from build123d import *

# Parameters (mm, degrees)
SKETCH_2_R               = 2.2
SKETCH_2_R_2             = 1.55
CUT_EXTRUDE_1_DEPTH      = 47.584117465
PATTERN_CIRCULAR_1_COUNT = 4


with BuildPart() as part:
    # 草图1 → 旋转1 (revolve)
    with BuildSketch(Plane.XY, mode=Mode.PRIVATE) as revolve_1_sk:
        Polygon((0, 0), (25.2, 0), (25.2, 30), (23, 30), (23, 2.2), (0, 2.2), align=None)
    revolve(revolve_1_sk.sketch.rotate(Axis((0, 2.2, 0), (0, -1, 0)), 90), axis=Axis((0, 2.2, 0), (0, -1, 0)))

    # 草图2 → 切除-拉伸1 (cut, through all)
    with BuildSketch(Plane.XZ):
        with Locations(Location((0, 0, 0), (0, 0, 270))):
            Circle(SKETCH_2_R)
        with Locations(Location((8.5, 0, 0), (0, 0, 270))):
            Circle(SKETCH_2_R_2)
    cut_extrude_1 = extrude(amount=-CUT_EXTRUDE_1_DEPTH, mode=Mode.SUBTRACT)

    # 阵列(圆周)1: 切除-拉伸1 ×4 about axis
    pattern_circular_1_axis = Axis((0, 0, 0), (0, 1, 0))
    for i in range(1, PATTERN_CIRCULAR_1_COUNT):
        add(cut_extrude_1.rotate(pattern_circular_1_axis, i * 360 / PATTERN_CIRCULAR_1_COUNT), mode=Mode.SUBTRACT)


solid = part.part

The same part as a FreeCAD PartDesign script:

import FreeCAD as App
import Part
import Sketcher

doc = App.newDocument("Part")
body = doc.addObject("PartDesign::Body", "Body")

sketch1 = body.newObject("Sketcher::SketchObject", "Sketch")
sketch1.AttachmentSupport = (doc.getObject("XY_Plane"), [""])
sketch1.MapMode = "FlatFace"
sketch1.addGeometry(Part.LineSegment(App.Vector(0, 0, 0), App.Vector(25.2, 0, 0)), False)
sketch1.addGeometry(Part.LineSegment(App.Vector(25.2, 0, 0), App.Vector(25.2, 30, 0)), False)
sketch1.addGeometry(Part.LineSegment(App.Vector(25.2, 30, 0), App.Vector(23, 30, 0)), False)
sketch1.addGeometry(Part.LineSegment(App.Vector(23, 30, 0), App.Vector(23, 2.2, 0)), False)
sketch1.addGeometry(Part.LineSegment(App.Vector(23, 2.2, 0), App.Vector(0, 2.2, 0)), False)
sketch1.addGeometry(Part.LineSegment(App.Vector(0, 2.2, 0), App.Vector(0, 0, 0)), False)
sketch1.addConstraint(Sketcher.Constraint("Coincident", 0, 2, 1, 1))
sketch1.addConstraint(Sketcher.Constraint("Coincident", 1, 2, 2, 1))
sketch1.addConstraint(Sketcher.Constraint("Coincident", 2, 2, 3, 1))
sketch1.addConstraint(Sketcher.Constraint("Coincident", 3, 2, 4, 1))
sketch1.addConstraint(Sketcher.Constraint("Coincident", 4, 2, 5, 1))
sketch1.addConstraint(Sketcher.Constraint("Coincident", 5, 2, 0, 1))
sketch1.addConstraint(Sketcher.Constraint("Horizontal", 0))
sketch1.addConstraint(Sketcher.Constraint("Vertical", 1))
sketch1.addConstraint(Sketcher.Constraint("Horizontal", 2))
sketch1.addConstraint(Sketcher.Constraint("Vertical", 3))
sketch1.addConstraint(Sketcher.Constraint("Horizontal", 4))
sketch1.addConstraint(Sketcher.Constraint("Vertical", 5))
sketch1.addConstraint(Sketcher.Constraint("Coincident", 5, 2, -1, 1))
sketch1.addConstraint(Sketcher.Constraint("Equal", 2, 5))
sketch1.addConstraint(Sketcher.Constraint("DistanceX", 4, 2, 4, 1, 23.0))
sketch1.addConstraint(Sketcher.Constraint("DistanceY", 1, 1, 1, 2, 30.0))
sketch1.addConstraint(Sketcher.Constraint("DistanceX", 0, 1, 0, 2, 25.2))
revolution = body.newObject("PartDesign::Revolution", "Revolution")
revolution.Profile = sketch1
revolution.ReferenceAxis = (sketch1, ["V_Axis"])
revolution.Angle = 360

sketch2 = body.newObject("Sketcher::SketchObject", "Sketch001")
sketch2.AttachmentSupport = (doc.getObject("XZ_Plane"), [""])
sketch2.MapMode = "FlatFace"
sketch2.addGeometry(Part.Circle(App.Vector(0, 0, 0), App.Vector(0, 0, 1), 2.2), False)
sketch2.addGeometry(Part.Circle(App.Vector(8.5, 0, 0), App.Vector(0, 0, 1), 1.6), False)
sketch2.addConstraint(Sketcher.Constraint("Coincident", 0, 3, -1, 1))
sketch2.addConstraint(Sketcher.Constraint("PointOnObject", 1, 3, -1))
sketch2.addConstraint(Sketcher.Constraint("Diameter", 0, 4.4))
sketch2.addConstraint(Sketcher.Constraint("Diameter", 1, 3.1))
sketch2.addConstraint(Sketcher.Constraint("DistanceX", -1, 1, 1, 3, 8.5))
pocket1 = body.newObject("PartDesign::Pocket", "Pocket")
pocket1.Profile = sketch2
pocket1.Type = "ThroughAll"
doc.recompute()

polarpattern = body.newObject("PartDesign::PolarPattern", "PolarPattern")
polarpattern.Originals = [pocket1]
polarpattern.Axis = (doc.getObject("Y_Axis"), [""])
polarpattern.Angle = 360
polarpattern.Occurrences = 4
body.Tip = polarpattern

doc.recompute()
